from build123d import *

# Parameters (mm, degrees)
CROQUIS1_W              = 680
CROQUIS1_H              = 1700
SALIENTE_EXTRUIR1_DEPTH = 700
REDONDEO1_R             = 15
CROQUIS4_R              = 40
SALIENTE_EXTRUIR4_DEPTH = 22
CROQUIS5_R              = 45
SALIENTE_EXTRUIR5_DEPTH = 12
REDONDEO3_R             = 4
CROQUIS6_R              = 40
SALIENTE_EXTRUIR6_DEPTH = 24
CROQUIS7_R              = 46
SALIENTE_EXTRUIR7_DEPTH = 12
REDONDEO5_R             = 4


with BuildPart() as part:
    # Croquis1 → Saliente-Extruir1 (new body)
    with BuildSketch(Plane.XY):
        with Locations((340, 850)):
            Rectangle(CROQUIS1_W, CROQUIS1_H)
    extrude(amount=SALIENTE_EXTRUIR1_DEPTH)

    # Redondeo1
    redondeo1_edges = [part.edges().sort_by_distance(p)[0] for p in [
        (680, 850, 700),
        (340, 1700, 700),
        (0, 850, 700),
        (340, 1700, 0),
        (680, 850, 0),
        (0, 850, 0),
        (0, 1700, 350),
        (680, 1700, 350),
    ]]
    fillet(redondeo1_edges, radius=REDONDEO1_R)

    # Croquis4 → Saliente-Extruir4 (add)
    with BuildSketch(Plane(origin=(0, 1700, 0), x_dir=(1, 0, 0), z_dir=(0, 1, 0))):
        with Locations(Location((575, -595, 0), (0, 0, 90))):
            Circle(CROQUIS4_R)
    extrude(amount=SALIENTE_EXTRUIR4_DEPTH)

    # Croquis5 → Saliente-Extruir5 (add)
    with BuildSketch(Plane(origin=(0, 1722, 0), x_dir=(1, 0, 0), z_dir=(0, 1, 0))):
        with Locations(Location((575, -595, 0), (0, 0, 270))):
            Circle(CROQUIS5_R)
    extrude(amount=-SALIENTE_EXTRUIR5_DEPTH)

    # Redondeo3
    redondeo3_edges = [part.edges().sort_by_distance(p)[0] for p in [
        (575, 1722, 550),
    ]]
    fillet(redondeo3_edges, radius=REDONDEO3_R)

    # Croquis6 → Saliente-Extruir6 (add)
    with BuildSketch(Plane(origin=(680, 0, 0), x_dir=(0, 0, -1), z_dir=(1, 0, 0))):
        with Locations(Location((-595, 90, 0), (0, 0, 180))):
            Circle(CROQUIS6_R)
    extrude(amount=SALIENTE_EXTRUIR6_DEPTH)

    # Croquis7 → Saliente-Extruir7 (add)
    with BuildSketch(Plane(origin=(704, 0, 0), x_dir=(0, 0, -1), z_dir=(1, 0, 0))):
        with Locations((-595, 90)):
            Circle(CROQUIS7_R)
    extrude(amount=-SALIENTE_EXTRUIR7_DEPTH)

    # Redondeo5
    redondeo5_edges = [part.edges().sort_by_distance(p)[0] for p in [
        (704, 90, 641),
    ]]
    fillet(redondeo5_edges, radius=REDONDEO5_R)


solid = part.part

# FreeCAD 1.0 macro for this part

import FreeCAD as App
import Part
import Sketcher
from FreeCAD import Vector
Q = App.Units.Quantity


def edges_at(feature, points):
    """Names of the edges that pass closest to the given points."""
    edges = feature.Shape.Edges
    near = lambda p: min(range(len(edges)), key=lambda i: edges[i].distToShape(Part.Vertex(*p))[0])
    return sorted({f"Edge{near(p) + 1}" for p in points})

doc = App.newDocument("Part")
body = doc.addObject("PartDesign::Body", "Body")

sketch1 = body.newObject("Sketcher::SketchObject", "Sketch")
sketch1.AttachmentSupport = (doc.getObject("XY_Plane"), [""])
sketch1.MapMode = "FlatFace"
sketch1.addGeometry(Part.LineSegment(Vector(0, 1700, 0), Vector(0, 0, 0)), False)
sketch1.addGeometry(Part.LineSegment(Vector(0, 0, 0), Vector(680, 0, 0)), False)
sketch1.addGeometry(Part.LineSegment(Vector(680, 0, 0), Vector(680, 1700, 0)), False)
sketch1.addGeometry(Part.LineSegment(Vector(680, 1700, 0), Vector(0, 1700, 0)), False)
sketch1.addConstraint(Sketcher.Constraint("Coincident", 0, 2, 1, 1))
sketch1.addConstraint(Sketcher.Constraint("Coincident", 1, 2, 2, 1))
sketch1.addConstraint(Sketcher.Constraint("Coincident", 2, 2, 3, 1))
sketch1.addConstraint(Sketcher.Constraint("Coincident", 3, 2, 0, 1))
sketch1.addConstraint(Sketcher.Constraint("Vertical", 0))
sketch1.addConstraint(Sketcher.Constraint("Horizontal", 1))
sketch1.addConstraint(Sketcher.Constraint("Vertical", 2))
sketch1.addConstraint(Sketcher.Constraint("Horizontal", 3))
sketch1.addConstraint(Sketcher.Constraint("Coincident", 0, 2, -1, 1))
sketch1.addConstraint(Sketcher.Constraint("DistanceX", 1, 1, 1, 2, Q("680 mm")))
sketch1.addConstraint(Sketcher.Constraint("DistanceY", 0, 2, 0, 1, Q("1700 mm")))
pad1 = body.newObject("PartDesign::Pad", "Pad")
pad1.Profile = sketch1
pad1.Length = 700
doc.recompute()

fillet = body.newObject("PartDesign::Fillet", "Fillet")
fillet.Base = (pad1, edges_at(pad1, [
    (680, 850, 700),
    (340, 1700, 700),
    (0, 850, 700),
    (340, 1700, 0),
    (680, 850, 0),
    (0, 850, 0),
    (0, 1700, 350),
    (680, 1700, 350),
]))
fillet.Radius = 15

sketch2 = body.newObject("Sketcher::SketchObject", "Sketch001")
sketch2.AttachmentSupport = (doc.getObject("XZ_Plane"), [""])
sketch2.MapMode = "FlatFace"
sketch2.AttachmentOffset = App.Placement(Vector(0, 0, -1700), App.Rotation())
sketch2.addGeometry(Part.Circle(Vector(575, 595, 0), Vector(0, 0, 1), 40), False)
sketch2.addConstraint(Sketcher.Constraint("Diameter", 0, Q("80 mm")))
sketch2.addConstraint(Sketcher.Constraint("DistanceX", -1, 1, 0, 3, Q("575 mm")))
sketch2.addConstraint(Sketcher.Constraint("DistanceY", -1, 1, 0, 3, Q("595 mm")))
pad2 = body.newObject("PartDesign::Pad", "Pad001")
pad2.Profile = sketch2
pad2.Length = 22
pad2.Reversed = True

sketch3 = body.newObject("Sketcher::SketchObject", "Sketch002")
sketch3.AttachmentSupport = (doc.getObject("XZ_Plane"), [""])
sketch3.MapMode = "FlatFace"
sketch3.AttachmentOffset = App.Placement(Vector(0, 0, -1722), App.Rotation())
sketch3.addGeometry(Part.Circle(Vector(575, 595, 0), Vector(0, 0, 1), 45), False)
sketch3.addConstraint(Sketcher.Constraint("Diameter", 0, Q("90 mm")))
sketch3.addConstraint(Sketcher.Constraint("DistanceX", -1, 1, 0, 3, Q("575 mm")))
sketch3.addConstraint(Sketcher.Constraint("DistanceY", -1, 1, 0, 3, Q("595 mm")))
pad3 = body.newObject("PartDesign::Pad", "Pad002")
pad3.Profile = sketch3
pad3.Length = 12
doc.recompute()

fillet2 = body.newObject("PartDesign::Fillet", "Fillet001")
fillet2.Base = (pad3, edges_at(pad3, [(575, 1722, 550)]))
fillet2.Radius = 4

sketch4 = body.newObject("Sketcher::SketchObject", "Sketch003")
sketch4.AttachmentSupport = (doc.getObject("YZ_Plane"), [""])
sketch4.MapMode = "FlatFace"
sketch4.AttachmentOffset = App.Placement(Vector(0, 0, 680), App.Rotation())
sketch4.addGeometry(Part.Circle(Vector(90, 595, 0), Vector(0, 0, 1), 40), False)
sketch4.addConstraint(Sketcher.Constraint("Diameter", 0, Q("80 mm")))
sketch4.addConstraint(Sketcher.Constraint("DistanceX", -1, 1, 0, 3, Q("90 mm")))
sketch4.addConstraint(Sketcher.Constraint("DistanceY", -1, 1, 0, 3, Q("595 mm")))
pad4 = body.newObject("PartDesign::Pad", "Pad003")
pad4.Profile = sketch4
pad4.Length = 24

sketch5 = body.newObject("Sketcher::SketchObject", "Sketch004")
sketch5.AttachmentSupport = (doc.getObject("YZ_Plane"), [""])
sketch5.MapMode = "FlatFace"
sketch5.AttachmentOffset = App.Placement(Vector(0, 0, 704), App.Rotation())
sketch5.addGeometry(Part.Circle(Vector(90, 595, 0), Vector(0, 0, 1), 46), False)
sketch5.addConstraint(Sketcher.Constraint("Diameter", 0, Q("92 mm")))
sketch5.addConstraint(Sketcher.Constraint("DistanceX", -1, 1, 0, 3, Q("90 mm")))
sketch5.addConstraint(Sketcher.Constraint("DistanceY", -1, 1, 0, 3, Q("595 mm")))
pad5 = body.newObject("PartDesign::Pad", "Pad004")
pad5.Profile = sketch5
pad5.Length = 12
pad5.Reversed = True
doc.recompute()

fillet3 = body.newObject("PartDesign::Fillet", "Fillet002")
fillet3.Base = (pad5, edges_at(pad5, [(704, 90, 641)]))
fillet3.Radius = 4

doc.recompute()
